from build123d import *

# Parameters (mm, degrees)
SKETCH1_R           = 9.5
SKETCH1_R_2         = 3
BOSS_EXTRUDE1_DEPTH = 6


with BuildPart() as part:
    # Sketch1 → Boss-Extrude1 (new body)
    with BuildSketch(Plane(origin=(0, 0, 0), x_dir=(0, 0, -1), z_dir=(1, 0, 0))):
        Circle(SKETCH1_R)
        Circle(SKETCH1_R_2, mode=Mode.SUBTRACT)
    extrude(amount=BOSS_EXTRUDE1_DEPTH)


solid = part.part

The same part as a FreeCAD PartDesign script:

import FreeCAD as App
import Part
import Sketcher
from FreeCAD import Vector
Q = App.Units.Quantity

doc = App.newDocument("Part")
params = doc.addObject("Spreadsheet::Sheet", "Params")
for row, (alias, value) in enumerate([
    ("sketch1_diameter", "19 mm"),
    ("sketch1_diameter2", "6 mm"),
    ("pad1_length", "6 mm"),
], start=1):
    params.set(f"A{row}", alias)
    params.set(f"B{row}", "=" + value)
    params.setAlias(f"B{row}", alias)

body = doc.addObject("PartDesign::Body", "Body")

sketch1 = doc.addObject("Sketcher::SketchObject", "Sketch")
body.addObject(sketch1)
sketch1.AttachmentSupport = (doc.YZ_Plane, [""])
sketch1.MapMode = "FlatFace"
sketch1.addGeometry(Part.Circle(Vector(0, 0, 0), Vector(0, 0, 1), 9.5), False)
sketch1.addGeometry(Part.Circle(Vector(0, 0, 0), Vector(0, 0, 1), 3), False)
sketch1.addConstraint(Sketcher.Constraint("Coincident", 0, 3, -1, 1))
sketch1.addConstraint(Sketcher.Constraint("Coincident", 1, 3, -1, 1))
sketch1.addConstraint(Sketcher.Constraint("Diameter", 0, Q("19 mm")))
sketch1.addConstraint(Sketcher.Constraint("Diameter", 1, Q("6 mm")))
sketch1.setExpression("Constraints[2]", "Params.sketch1_diameter")
sketch1.setExpression("Constraints[3]", "Params.sketch1_diameter2")
pad1 = doc.addObject("PartDesign::Pad", "Pad")
body.addObject(pad1)
pad1.Profile = sketch1
pad1.setExpression("Length", "Params.pad1_length")

doc.recompute()
